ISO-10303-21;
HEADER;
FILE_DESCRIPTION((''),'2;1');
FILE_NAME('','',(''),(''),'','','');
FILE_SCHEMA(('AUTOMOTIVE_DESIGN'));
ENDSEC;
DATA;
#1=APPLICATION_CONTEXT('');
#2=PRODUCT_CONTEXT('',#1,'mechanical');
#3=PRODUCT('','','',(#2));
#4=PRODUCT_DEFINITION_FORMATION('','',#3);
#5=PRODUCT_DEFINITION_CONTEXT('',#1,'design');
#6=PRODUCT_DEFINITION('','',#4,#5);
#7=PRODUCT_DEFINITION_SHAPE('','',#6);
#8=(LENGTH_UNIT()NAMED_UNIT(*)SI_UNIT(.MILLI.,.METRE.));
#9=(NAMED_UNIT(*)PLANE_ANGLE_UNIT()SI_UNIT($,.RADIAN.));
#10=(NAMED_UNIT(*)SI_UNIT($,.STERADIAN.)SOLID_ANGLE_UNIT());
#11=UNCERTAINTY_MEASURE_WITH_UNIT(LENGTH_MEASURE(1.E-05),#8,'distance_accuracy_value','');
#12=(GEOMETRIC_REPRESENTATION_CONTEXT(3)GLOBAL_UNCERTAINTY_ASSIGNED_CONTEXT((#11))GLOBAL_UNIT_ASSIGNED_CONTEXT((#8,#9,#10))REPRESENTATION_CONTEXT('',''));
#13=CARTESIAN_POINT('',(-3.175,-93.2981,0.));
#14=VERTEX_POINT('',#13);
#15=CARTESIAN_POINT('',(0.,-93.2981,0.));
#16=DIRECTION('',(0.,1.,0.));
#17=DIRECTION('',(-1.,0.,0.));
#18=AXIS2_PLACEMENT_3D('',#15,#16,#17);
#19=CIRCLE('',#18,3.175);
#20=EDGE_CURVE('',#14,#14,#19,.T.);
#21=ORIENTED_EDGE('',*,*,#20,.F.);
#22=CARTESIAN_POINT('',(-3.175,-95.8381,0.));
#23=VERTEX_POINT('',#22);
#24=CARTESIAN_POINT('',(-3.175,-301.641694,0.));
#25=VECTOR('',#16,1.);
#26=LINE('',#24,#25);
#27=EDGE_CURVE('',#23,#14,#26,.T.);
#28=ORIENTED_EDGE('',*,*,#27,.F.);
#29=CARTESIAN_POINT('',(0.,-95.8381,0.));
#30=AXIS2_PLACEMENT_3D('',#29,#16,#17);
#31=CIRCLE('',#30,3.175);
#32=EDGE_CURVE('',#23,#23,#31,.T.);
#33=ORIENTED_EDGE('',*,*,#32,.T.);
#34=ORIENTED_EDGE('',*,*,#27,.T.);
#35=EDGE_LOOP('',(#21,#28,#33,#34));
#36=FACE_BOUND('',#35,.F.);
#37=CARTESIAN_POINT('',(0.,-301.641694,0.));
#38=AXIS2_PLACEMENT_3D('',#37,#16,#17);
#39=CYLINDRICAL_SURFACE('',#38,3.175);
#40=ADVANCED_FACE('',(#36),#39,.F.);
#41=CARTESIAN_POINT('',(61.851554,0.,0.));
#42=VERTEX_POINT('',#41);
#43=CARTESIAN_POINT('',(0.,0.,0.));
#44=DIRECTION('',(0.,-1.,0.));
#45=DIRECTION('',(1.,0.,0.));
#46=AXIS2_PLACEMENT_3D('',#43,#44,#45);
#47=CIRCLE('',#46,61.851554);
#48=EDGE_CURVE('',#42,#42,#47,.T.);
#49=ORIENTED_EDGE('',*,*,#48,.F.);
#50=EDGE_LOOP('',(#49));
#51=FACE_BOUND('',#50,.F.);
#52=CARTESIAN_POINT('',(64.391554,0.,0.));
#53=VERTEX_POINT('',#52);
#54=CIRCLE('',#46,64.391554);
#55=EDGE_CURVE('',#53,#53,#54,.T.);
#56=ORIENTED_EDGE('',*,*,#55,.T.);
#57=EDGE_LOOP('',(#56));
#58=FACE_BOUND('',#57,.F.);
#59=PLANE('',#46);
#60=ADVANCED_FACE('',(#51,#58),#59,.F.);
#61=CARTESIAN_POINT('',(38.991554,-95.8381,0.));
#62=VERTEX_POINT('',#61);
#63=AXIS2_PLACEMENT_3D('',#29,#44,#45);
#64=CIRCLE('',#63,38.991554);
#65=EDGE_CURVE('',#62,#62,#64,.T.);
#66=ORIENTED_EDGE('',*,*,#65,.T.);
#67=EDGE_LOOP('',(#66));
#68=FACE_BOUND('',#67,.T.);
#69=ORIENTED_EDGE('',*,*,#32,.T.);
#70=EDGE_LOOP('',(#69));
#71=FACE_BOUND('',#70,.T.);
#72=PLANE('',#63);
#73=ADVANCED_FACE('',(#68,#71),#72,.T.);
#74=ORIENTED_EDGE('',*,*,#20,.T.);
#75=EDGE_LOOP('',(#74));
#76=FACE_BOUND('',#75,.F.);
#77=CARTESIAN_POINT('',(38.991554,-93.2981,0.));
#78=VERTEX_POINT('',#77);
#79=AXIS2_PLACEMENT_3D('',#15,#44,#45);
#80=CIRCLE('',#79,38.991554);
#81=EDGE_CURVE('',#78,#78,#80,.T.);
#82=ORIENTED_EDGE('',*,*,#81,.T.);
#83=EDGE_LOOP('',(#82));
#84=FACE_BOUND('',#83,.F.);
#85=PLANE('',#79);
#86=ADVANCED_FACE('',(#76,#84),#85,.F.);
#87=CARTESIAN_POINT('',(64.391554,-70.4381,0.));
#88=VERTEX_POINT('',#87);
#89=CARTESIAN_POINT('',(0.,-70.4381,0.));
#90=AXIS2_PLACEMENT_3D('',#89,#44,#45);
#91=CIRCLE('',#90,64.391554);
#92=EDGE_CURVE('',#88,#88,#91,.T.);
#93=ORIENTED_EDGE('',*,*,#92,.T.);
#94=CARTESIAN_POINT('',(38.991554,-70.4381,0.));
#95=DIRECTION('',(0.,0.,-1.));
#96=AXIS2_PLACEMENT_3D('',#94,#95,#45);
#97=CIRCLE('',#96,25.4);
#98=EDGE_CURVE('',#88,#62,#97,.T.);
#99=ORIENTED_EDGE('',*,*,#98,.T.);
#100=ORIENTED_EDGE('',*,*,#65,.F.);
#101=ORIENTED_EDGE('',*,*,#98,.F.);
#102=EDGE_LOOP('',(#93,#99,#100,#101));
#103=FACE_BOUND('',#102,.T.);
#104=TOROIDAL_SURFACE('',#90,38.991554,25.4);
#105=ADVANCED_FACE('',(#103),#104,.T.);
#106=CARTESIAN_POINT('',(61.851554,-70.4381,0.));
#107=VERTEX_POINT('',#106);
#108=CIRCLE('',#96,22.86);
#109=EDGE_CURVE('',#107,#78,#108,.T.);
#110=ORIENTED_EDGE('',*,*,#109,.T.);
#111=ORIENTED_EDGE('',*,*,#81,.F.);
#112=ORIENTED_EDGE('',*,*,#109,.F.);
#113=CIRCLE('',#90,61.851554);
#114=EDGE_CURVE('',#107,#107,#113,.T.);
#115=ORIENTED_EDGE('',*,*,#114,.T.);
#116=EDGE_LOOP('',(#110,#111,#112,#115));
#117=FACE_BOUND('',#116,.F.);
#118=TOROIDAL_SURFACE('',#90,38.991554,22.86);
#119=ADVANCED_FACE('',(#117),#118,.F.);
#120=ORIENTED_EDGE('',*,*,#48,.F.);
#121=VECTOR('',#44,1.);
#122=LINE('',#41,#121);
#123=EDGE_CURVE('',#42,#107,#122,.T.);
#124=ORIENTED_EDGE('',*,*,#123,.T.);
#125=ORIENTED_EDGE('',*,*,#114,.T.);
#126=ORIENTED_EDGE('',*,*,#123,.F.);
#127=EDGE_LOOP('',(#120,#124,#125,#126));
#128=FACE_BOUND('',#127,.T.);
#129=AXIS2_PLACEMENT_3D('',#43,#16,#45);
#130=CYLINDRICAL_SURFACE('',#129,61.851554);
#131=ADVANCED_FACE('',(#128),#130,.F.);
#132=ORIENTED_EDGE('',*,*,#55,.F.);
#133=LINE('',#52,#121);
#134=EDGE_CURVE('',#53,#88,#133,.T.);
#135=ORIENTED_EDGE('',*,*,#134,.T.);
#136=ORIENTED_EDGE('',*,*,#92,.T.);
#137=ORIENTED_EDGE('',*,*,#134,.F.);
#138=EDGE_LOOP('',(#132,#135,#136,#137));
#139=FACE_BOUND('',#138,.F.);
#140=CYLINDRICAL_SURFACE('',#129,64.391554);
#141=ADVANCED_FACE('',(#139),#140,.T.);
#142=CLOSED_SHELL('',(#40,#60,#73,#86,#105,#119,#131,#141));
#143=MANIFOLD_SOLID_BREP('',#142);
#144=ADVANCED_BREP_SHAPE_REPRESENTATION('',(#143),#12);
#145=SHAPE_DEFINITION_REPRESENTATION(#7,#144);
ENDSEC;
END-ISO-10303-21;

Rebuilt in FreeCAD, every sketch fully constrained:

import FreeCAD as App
import Part
import Sketcher
Q = App.Units.Quantity


def edges_at(feature, points):
    """Names of the edges that pass closest to the given points."""
    edges = feature.Shape.Edges
    near = lambda p: min(range(len(edges)), key=lambda i: edges[i].distToShape(Part.Vertex(*p))[0])
    return sorted({f"Edge{near(p) + 1}" for p in points})


def faces_at(feature, points):
    """Names of the faces that lie closest to the given points."""
    faces = feature.Shape.Faces
    near = lambda p: min(range(len(faces)), key=lambda i: faces[i].distToShape(Part.Vertex(*p))[0])
    return sorted({f"Face{near(p) + 1}" for p in points})

doc = App.newDocument("Part")
params = doc.addObject("Spreadsheet::Sheet", "Params")
for row, (alias, value) in enumerate([
    ("pad1_length", "95.8381 mm"),
    ("fillet_radius", "1 in"),
    ("thickness_wall", "0.1 in"),
    ("sketch2_diameter", "0.25 in"),
    ("hole_diameter", "0.25 in"),
], start=1):
    params.set(f"A{row}", alias)
    params.set(f"B{row}", "=" + value)
    params.setAlias(f"B{row}", alias)

body = doc.addObject("PartDesign::Body", "Body")

sketch1 = body.newObject("Sketcher::SketchObject", "Sketch")
sketch1.AttachmentSupport = (doc.getObject("XZ_Plane"), [""])
sketch1.MapMode = "FlatFace"
sketch1.addGeometry(Part.Circle(App.Vector(0, 0, 0), App.Vector(0, 0, 1), 64), False)
sketch1.addConstraint(Sketcher.Constraint("Coincident", 0, 3, -1, 1))
sketch1.addConstraint(Sketcher.Constraint("Diameter", 0, Q("128.783108 mm")))
pad1 = body.newObject("PartDesign::Pad", "Pad")
pad1.Profile = sketch1
pad1.setExpression("Length", "Params.pad1_length")
doc.recompute()

fillet = body.newObject("PartDesign::Fillet", "Fillet")
fillet.Base = (pad1, edges_at(pad1, [(-64.392, -95.838, 0)]))
fillet.setExpression("Radius", "Params.fillet_radius")
doc.recompute()

thickness = body.newObject("PartDesign::Thickness", "Thickness")
thickness.Base = (fillet, faces_at(fillet, [(0, 0, 0)]))
thickness.setExpression("Value", "Params.thickness_wall")
thickness.Reversed = True
thickness.Join = "Arc"

sketch2 = body.newObject("Sketcher::SketchObject", "Sketch001")
sketch2.AttachmentSupport = (doc.getObject("XZ_Plane"), [""])
sketch2.MapMode = "FlatFace"
sketch2.AttachmentOffset = App.Placement(App.Vector(0, 0, 95.8381), App.Rotation())
sketch2.addGeometry(Part.Circle(App.Vector(0, 0, 0), App.Vector(0, 0, 1), 3.2), False)
sketch2.addConstraint(Sketcher.Constraint("Coincident", 0, 3, -1, 1))
sketch2.addConstraint(Sketcher.Constraint("Diameter", 0, Q("0.25 in")))
sketch2.setExpression("Constraints[1]", "Params.sketch2_diameter")
doc.recompute()
hole = body.newObject("PartDesign::Hole", "Hole")
hole.Profile = sketch2
hole.ThreadType = "None"
hole.setExpression("Diameter", "Params.hole_diameter")
hole.DepthType = "ThroughAll"

doc.recompute()
